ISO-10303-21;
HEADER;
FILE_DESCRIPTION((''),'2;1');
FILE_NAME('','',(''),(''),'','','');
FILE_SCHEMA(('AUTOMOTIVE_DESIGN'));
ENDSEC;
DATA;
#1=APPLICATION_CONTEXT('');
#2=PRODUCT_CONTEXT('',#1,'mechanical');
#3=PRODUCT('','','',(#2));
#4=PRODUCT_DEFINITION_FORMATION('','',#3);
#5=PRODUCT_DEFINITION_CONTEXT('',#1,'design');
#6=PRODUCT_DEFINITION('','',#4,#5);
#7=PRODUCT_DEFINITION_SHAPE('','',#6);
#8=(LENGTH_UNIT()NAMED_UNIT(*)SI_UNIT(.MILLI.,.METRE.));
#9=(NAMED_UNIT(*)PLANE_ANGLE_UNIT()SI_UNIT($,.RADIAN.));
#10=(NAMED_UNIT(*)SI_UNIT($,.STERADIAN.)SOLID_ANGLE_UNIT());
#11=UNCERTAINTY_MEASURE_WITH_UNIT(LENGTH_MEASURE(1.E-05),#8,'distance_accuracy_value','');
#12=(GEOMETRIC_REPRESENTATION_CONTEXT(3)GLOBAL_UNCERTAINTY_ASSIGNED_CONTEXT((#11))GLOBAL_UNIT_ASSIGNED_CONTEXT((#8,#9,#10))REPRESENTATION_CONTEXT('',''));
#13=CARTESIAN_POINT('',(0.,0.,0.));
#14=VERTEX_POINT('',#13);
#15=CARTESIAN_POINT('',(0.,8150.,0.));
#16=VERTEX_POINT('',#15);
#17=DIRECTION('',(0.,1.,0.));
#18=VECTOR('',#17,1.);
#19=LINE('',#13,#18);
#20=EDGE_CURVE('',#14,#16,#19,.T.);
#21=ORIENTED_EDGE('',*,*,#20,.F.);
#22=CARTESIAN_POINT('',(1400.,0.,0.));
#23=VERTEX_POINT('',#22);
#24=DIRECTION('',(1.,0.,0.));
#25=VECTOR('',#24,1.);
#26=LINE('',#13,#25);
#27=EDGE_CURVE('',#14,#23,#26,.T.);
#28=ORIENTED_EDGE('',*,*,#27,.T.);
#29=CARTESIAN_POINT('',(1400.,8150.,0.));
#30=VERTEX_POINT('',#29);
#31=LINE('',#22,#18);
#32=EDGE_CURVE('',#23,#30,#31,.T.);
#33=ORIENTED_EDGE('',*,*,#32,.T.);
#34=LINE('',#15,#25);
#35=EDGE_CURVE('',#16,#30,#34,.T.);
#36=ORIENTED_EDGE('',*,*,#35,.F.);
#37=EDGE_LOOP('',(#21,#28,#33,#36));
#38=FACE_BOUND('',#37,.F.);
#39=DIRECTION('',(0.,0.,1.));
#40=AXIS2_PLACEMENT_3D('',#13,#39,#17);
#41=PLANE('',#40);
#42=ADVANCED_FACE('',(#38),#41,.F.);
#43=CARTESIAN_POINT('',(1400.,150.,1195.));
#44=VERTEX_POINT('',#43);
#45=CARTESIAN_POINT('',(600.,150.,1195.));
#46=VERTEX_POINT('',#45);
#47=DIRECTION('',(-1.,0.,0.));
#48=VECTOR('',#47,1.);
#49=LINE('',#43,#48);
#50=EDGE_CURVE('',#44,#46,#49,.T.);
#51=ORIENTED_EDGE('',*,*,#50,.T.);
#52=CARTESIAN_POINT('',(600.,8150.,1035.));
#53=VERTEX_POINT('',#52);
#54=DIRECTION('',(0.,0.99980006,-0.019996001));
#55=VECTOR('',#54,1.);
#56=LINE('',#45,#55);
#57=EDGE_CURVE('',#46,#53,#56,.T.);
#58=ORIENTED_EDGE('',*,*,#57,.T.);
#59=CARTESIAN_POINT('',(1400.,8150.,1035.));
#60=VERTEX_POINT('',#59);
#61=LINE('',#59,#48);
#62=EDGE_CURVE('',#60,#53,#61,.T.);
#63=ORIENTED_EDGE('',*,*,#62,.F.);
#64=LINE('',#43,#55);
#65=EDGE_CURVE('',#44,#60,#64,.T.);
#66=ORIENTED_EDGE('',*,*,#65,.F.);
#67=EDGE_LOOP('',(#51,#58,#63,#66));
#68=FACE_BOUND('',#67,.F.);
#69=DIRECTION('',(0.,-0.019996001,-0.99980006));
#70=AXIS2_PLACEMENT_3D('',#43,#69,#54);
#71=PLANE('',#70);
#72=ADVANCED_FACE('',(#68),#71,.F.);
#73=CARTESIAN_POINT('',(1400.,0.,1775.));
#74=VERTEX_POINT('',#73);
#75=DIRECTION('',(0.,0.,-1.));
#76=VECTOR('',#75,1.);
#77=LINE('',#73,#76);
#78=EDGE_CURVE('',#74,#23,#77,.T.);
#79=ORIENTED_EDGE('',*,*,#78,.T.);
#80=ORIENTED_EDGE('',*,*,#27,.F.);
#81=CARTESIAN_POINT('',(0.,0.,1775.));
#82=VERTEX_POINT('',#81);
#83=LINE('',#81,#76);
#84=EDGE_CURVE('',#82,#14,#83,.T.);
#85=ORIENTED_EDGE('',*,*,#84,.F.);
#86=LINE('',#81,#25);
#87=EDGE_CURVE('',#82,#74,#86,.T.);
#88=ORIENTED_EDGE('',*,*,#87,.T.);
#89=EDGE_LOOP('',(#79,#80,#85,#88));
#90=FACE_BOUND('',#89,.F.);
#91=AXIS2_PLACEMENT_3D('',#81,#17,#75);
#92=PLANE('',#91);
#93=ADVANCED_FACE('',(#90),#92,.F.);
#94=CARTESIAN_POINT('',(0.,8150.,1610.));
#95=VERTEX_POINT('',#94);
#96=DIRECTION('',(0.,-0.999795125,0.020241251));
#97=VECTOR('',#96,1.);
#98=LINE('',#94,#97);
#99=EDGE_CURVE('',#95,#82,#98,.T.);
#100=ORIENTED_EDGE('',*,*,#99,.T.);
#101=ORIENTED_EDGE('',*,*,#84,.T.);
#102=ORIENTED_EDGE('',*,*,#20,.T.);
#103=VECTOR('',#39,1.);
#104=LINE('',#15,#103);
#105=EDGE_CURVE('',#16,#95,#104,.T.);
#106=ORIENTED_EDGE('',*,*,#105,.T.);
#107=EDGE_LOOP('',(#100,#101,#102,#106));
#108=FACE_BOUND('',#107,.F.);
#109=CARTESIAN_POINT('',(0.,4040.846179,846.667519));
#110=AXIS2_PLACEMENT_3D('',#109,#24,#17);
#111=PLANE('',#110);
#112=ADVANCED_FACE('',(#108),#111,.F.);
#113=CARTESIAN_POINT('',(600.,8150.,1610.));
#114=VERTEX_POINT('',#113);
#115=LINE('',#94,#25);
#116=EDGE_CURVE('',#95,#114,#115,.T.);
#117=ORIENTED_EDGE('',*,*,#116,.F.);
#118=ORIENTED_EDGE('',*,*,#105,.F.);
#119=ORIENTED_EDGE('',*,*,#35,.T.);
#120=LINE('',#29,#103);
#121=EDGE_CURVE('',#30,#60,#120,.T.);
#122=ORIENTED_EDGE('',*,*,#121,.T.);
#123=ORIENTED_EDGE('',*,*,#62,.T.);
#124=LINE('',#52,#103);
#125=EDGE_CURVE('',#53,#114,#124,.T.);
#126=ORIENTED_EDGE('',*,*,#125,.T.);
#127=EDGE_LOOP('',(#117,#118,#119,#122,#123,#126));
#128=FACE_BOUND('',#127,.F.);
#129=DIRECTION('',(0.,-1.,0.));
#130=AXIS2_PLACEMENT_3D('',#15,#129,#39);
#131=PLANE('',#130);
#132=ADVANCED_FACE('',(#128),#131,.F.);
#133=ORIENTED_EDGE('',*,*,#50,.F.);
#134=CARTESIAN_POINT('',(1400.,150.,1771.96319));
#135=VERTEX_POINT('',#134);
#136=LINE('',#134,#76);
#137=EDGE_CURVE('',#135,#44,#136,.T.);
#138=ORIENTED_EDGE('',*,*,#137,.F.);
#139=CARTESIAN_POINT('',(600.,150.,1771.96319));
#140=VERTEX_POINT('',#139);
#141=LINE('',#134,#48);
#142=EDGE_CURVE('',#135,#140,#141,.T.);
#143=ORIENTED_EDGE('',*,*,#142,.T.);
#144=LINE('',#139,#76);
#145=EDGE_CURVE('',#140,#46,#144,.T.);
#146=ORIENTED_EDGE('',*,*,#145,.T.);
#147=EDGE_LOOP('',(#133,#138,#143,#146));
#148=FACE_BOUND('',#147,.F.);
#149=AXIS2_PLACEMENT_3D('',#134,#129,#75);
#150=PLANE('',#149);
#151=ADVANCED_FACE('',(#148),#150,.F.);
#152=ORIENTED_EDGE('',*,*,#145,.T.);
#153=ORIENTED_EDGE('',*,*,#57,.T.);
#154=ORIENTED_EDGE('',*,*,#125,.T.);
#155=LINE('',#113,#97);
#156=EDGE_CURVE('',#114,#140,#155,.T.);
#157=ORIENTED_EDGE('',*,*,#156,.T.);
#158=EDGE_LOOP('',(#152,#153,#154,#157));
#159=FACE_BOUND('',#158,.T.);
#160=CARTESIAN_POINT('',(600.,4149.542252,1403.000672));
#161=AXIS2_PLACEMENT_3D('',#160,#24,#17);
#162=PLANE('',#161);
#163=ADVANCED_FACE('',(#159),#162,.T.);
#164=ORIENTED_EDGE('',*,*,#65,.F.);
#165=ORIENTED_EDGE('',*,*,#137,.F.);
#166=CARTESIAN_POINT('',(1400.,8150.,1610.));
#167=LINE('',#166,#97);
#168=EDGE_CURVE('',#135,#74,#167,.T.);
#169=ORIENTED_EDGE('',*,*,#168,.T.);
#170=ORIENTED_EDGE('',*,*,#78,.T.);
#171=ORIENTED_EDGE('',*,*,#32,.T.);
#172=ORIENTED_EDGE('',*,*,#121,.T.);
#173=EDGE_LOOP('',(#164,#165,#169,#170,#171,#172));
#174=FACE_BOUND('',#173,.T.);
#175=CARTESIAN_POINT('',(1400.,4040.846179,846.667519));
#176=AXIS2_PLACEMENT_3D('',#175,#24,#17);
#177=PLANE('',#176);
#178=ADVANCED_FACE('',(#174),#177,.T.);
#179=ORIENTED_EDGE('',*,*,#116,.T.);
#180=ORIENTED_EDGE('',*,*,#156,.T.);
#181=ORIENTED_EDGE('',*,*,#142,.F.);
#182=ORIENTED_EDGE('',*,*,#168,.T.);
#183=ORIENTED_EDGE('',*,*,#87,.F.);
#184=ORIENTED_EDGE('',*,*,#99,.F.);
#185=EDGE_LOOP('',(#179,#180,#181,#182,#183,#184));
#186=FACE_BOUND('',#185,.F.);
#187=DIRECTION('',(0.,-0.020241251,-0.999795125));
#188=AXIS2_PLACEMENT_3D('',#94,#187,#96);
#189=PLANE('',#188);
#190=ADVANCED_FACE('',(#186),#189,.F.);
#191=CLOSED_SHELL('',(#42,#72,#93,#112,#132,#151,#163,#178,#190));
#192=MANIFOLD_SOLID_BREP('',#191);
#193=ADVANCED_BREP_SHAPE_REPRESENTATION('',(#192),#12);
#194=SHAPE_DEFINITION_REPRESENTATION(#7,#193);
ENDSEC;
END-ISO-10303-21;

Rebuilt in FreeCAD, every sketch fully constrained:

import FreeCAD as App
import Part
import Sketcher
Q = App.Units.Quantity


def add_polygon(sketch, points):
    """Adds a closed chain of lines whose ends are joined by coincident constraints."""
    first, n = sketch.GeometryCount, len(points)
    for a, b in zip(points, points[1:] + points[:1]):
        sketch.addGeometry(Part.LineSegment(App.Vector(*a, 0), App.Vector(*b, 0)), False)
    for i in range(n):
        sketch.addConstraint(Sketcher.Constraint("Coincident", first + i, 2, first + (i + 1) % n, 1))

doc = App.newDocument("Part")
body = doc.addObject("PartDesign::Body", "Body")

sketch1 = body.newObject("Sketcher::SketchObject", "Sketch")
sketch1.AttachmentSupport = (doc.getObject("YZ_Plane"), [""])
sketch1.MapMode = "FlatFace"
add_polygon(sketch1, [(0, 0), (8150, 0), (8150, 1610), (0, 1775)])
sketch1.addConstraint([
    Sketcher.Constraint("Horizontal", 0),
    Sketcher.Constraint("Vertical", 1),
    Sketcher.Constraint("Vertical", 3),
    Sketcher.Constraint("Coincident", 3, 2, -1, 1),
    Sketcher.Constraint("DistanceX", 0, 1, 0, 2, Q("8150 mm")),
    Sketcher.Constraint("DistanceY", 1, 1, 1, 2, Q("1610 mm")),
    Sketcher.Constraint("DistanceY", 3, 2, 3, 1, Q("1775 mm")),
])
pad1 = body.newObject("PartDesign::Pad", "Pad")
pad1.Profile = sketch1
pad1.Length = 1400

sketch2 = body.newObject("Sketcher::SketchObject", "Sketch001")
sketch2.AttachmentSupport = (doc.getObject("YZ_Plane"), [""])
sketch2.MapMode = "FlatFace"
sketch2.AttachmentOffset = App.Placement(App.Vector(0, 0, 1400), App.Rotation())
add_polygon(sketch2, [(8150, 1035), (8150, 1610), (150, 1772), (150, 1195)])
sketch2.addConstraint([
    Sketcher.Constraint("Vertical", 0),
    Sketcher.Constraint("Vertical", 2),
    Sketcher.Constraint("DistanceY", 0, 1, 0, 2, Q("575 mm")),
    Sketcher.Constraint("DistanceX", -1, 1, 0, 2, Q("8150 mm")),
    Sketcher.Constraint("DistanceY", -1, 1, 0, 2, Q("1610 mm")),
    Sketcher.Constraint("DistanceX", -1, 1, 1, 2, Q("150 mm")),
    Sketcher.Constraint("DistanceY", -1, 1, 2, 2, Q("1195 mm")),
    Sketcher.Constraint("DistanceY", 2, 2, 2, 1, Q("576.96319 mm")),
])
pocket1 = body.newObject("PartDesign::Pocket", "Pocket")
pocket1.Profile = sketch2
pocket1.Length = 800

doc.recompute()
